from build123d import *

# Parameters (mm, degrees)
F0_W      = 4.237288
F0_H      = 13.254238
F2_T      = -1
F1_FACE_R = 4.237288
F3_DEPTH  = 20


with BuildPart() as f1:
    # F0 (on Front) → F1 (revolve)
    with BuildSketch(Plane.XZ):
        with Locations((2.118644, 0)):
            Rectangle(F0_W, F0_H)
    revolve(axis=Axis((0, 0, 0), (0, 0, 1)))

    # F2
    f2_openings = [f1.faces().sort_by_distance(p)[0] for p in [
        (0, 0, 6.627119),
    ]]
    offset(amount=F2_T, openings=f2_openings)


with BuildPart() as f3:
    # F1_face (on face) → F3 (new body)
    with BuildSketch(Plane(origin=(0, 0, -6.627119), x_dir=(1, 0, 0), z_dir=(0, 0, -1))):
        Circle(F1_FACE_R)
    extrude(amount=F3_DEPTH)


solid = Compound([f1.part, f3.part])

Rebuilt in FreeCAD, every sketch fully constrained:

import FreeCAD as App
import Part
import Sketcher
Q = App.Units.Quantity


def faces_at(feature, points):
    """Names of the faces that lie closest to the given points."""
    faces = feature.Shape.Faces
    near = lambda p: min(range(len(faces)), key=lambda i: faces[i].distToShape(Part.Vertex(*p))[0])
    return sorted({f"Face{near(p) + 1}" for p in points})


def add_polygon(sketch, points):
    """Adds a closed chain of lines whose ends are joined by coincident constraints."""
    first, n = sketch.GeometryCount, len(points)
    for a, b in zip(points, points[1:] + points[:1]):
        sketch.addGeometry(Part.LineSegment(App.Vector(*a, 0), App.Vector(*b, 0)), False)
    for i in range(n):
        sketch.addConstraint(Sketcher.Constraint("Coincident", first + i, 2, first + (i + 1) % n, 1))

doc = App.newDocument("Part")
params = doc.addObject("Spreadsheet::Sheet", "Params")
for row, (alias, value) in enumerate([
    ("revolution_angle", "360 deg"),
    ("thickness_wall", "1 mm"),
    ("pad1_length", "20 mm"),
], start=1):
    params.set(f"A{row}", alias)
    params.set(f"B{row}", "=" + value)
    params.setAlias(f"B{row}", alias)

body = doc.addObject("PartDesign::Body", "Body")

sketch1 = body.newObject("Sketcher::SketchObject", "Sketch")
sketch1.AttachmentSupport = (doc.getObject("XZ_Plane"), [""])
sketch1.MapMode = "FlatFace"
add_polygon(sketch1, [(0, 6.6), (0, -6.6), (4.2, -6.6), (4.2, 6.6)])
sketch1.addConstraint(Sketcher.Constraint("Vertical", 0))
sketch1.addConstraint(Sketcher.Constraint("Horizontal", 1))
sketch1.addConstraint(Sketcher.Constraint("Vertical", 2))
sketch1.addConstraint(Sketcher.Constraint("Horizontal", 3))
sketch1.addConstraint(Sketcher.Constraint("Symmetric", 0, 2, 3, 2, -1, 1))
sketch1.addConstraint(Sketcher.Constraint("DistanceX", 1, 1, 1, 2, Q("4.237288 mm")))
sketch1.addConstraint(Sketcher.Constraint("DistanceY", 0, 2, 0, 1, Q("13.254238 mm")))
revolution = body.newObject("PartDesign::Revolution", "Revolution")
revolution.Profile = sketch1
revolution.ReferenceAxis = (sketch1, ["V_Axis"])
revolution.setExpression("Angle", "Params.revolution_angle")
doc.recompute()

thickness = body.newObject("PartDesign::Thickness", "Thickness")
thickness.Base = (revolution, faces_at(revolution, [(0, 0, 6.627)]))
thickness.setExpression("Value", "Params.thickness_wall")
thickness.Reversed = True
thickness.Join = "Arc"
body2 = doc.addObject("PartDesign::Body", "Body001")

sketch2 = body2.newObject("Sketcher::SketchObject", "Sketch001")
sketch2.AttachmentSupport = (doc.getObject("XY_Plane001"), [""])
sketch2.MapMode = "FlatFace"
sketch2.AttachmentOffset = App.Placement(App.Vector(0, 0, -6.627119), App.Rotation())
sketch2.addGeometry(Part.Circle(App.Vector(0, 0, 0), App.Vector(0, 0, 1), 4.2), False)
sketch2.addConstraint(Sketcher.Constraint("Coincident", 0, 3, -1, 1))
sketch2.addConstraint(Sketcher.Constraint("Diameter", 0, Q("8.474576 mm")))
pad1 = body2.newObject("PartDesign::Pad", "Pad")
pad1.Profile = sketch2
pad1.setExpression("Length", "Params.pad1_length")
pad1.Reversed = True

doc.recompute()
